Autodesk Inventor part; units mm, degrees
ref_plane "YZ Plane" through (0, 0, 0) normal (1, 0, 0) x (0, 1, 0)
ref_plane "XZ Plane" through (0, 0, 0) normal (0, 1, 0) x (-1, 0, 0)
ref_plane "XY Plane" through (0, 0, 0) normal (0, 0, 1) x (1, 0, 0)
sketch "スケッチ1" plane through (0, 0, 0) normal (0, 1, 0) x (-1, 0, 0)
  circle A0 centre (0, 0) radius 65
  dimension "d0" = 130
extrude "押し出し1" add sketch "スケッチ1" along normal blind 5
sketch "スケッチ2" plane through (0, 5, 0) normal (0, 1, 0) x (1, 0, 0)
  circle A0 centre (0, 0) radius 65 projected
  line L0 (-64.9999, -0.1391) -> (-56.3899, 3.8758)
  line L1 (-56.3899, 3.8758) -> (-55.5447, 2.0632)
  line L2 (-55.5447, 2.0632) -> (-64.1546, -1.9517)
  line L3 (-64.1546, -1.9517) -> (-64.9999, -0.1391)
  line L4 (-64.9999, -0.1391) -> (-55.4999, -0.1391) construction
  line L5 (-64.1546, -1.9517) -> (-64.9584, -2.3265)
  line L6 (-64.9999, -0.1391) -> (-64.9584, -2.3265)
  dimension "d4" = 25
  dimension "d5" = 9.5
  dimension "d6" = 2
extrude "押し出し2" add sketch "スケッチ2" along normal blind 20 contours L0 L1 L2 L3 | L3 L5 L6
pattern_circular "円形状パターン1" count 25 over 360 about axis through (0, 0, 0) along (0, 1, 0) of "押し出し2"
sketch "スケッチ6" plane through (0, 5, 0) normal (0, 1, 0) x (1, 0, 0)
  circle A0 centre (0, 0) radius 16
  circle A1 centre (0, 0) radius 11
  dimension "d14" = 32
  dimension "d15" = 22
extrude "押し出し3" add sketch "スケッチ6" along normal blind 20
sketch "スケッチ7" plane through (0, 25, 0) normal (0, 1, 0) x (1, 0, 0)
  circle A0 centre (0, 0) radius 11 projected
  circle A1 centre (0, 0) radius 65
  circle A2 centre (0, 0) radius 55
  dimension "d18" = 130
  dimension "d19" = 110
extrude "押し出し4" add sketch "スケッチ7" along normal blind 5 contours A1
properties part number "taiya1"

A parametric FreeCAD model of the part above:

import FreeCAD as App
import Part
import Sketcher
Q = App.Units.Quantity

doc = App.newDocument("Part")
body = doc.addObject("PartDesign::Body", "Body")

sketch1 = doc.addObject("Sketcher::SketchObject", "Sketch")
body.addObject(sketch1)
sketch1.AttachmentSupport = (doc.XZ_Plane, [""])
sketch1.MapMode = "FlatFace"
sketch1.addGeometry(Part.Circle(App.Vector(0, 0, 0), App.Vector(0, 0, 1), 65), False)
sketch1.addConstraint([
    Sketcher.Constraint("Coincident", 0, 3, -1, 1),
    Sketcher.Constraint("Diameter", 0, Q("130 mm")),
])
pad1 = doc.addObject("PartDesign::Pad", "Pad")
body.addObject(pad1)
pad1.Profile = sketch1
pad1.Length = 5
pad1.Reversed = True

sketch2 = doc.addObject("Sketcher::SketchObject", "Sketch001")
body.addObject(sketch2)
sketch2.AttachmentSupport = (doc.XZ_Plane, [""])
sketch2.MapMode = "FlatFace"
sketch2.AttachmentOffset = App.Placement(App.Vector(0, 0, -5), App.Rotation())
sketch2.addGeometry([
    Part.LineSegment(App.Vector(-56.4, -3.9, 0), App.Vector(-65, 0.1, 0)),
    Part.LineSegment(App.Vector(-65, 0.1, 0), App.Vector(-65, 2.3, 0)),
    Part.LineSegment(App.Vector(-65, 2.3, 0), App.Vector(-64.2, 2, 0)),
    Part.LineSegment(App.Vector(-64.2, 2, 0), App.Vector(-55.5, -2.1, 0)),
    Part.LineSegment(App.Vector(-55.5, -2.1, 0), App.Vector(-56.4, -3.9, 0)),
], False)
sketch2.addConstraint([
    Sketcher.Constraint("Coincident", 0, 2, 1, 1),
    Sketcher.Constraint("Coincident", 1, 2, 2, 1),
    Sketcher.Constraint("Coincident", 2, 2, 3, 1),
    Sketcher.Constraint("Coincident", 3, 2, 4, 1),
    Sketcher.Constraint("Coincident", 4, 2, 0, 1),
    Sketcher.Constraint("Parallel", 0, 2),
    Sketcher.Constraint("Parallel", 2, 3),
    Sketcher.Constraint("Perpendicular", 3, 4),
    Sketcher.Constraint("Equal", 0, 3),
    Sketcher.Constraint("Angle", 3, Q("-25.0002 deg")),
    Sketcher.Constraint("Distance", 4, Q("2 mm")),
    Sketcher.Constraint("Distance", 0, Q("9.5 mm")),
    Sketcher.Constraint("DistanceX", 0, 2, -1, 1, Q("65 mm")),
    Sketcher.Constraint("Distance", 2, Q("0.887 mm")),
    Sketcher.Constraint("DistanceY", -1, 1, 0, 2, Q("0.139 mm")),
])
pad2 = doc.addObject("PartDesign::Pad", "Pad001")
body.addObject(pad2)
pad2.Profile = sketch2
pad2.Length = 20
pad2.Reversed = True
doc.recompute()

polarpattern = doc.addObject("PartDesign::PolarPattern", "PolarPattern")
body.addObject(polarpattern)
polarpattern.Originals = [pad2]
polarpattern.Axis = (doc.Y_Axis, [""])
polarpattern.Angle = 360
polarpattern.Occurrences = 25
body.Tip = polarpattern

sketch3 = doc.addObject("Sketcher::SketchObject", "Sketch002")
body.addObject(sketch3)
sketch3.AttachmentSupport = (doc.XZ_Plane, [""])
sketch3.MapMode = "FlatFace"
sketch3.AttachmentOffset = App.Placement(App.Vector(0, 0, -5), App.Rotation())
sketch3.addGeometry([
    Part.Circle(App.Vector(0, 0, 0), App.Vector(0, 0, 1), 16),
    Part.Circle(App.Vector(0, 0, 0), App.Vector(0, 0, 1), 11),
], False)
sketch3.addConstraint([
    Sketcher.Constraint("Coincident", 0, 3, -1, 1),
    Sketcher.Constraint("Coincident", 1, 3, -1, 1),
    Sketcher.Constraint("Diameter", 0, Q("32 mm")),
    Sketcher.Constraint("Diameter", 1, Q("22 mm")),
])
pad3 = doc.addObject("PartDesign::Pad", "Pad002")
body.addObject(pad3)
pad3.Profile = sketch3
pad3.Length = 20
pad3.Reversed = True

sketch4 = doc.addObject("Sketcher::SketchObject", "Sketch003")
body.addObject(sketch4)
sketch4.AttachmentSupport = (doc.XZ_Plane, [""])
sketch4.MapMode = "FlatFace"
sketch4.AttachmentOffset = App.Placement(App.Vector(0, 0, -25), App.Rotation())
sketch4.addGeometry([
    Part.Circle(App.Vector(0, 0, 0), App.Vector(0, 0, 1), 65),
    Part.Circle(App.Vector(0, 0, 0), App.Vector(0, 0, 1), 55),
], False)
sketch4.addConstraint([
    Sketcher.Constraint("Coincident", 0, 3, -1, 1),
    Sketcher.Constraint("Coincident", 1, 3, -1, 1),
    Sketcher.Constraint("Diameter", 0, Q("130 mm")),
    Sketcher.Constraint("Diameter", 1, Q("110 mm")),
])
pad4 = doc.addObject("PartDesign::Pad", "Pad003")
body.addObject(pad4)
pad4.Profile = sketch4
pad4.Length = 5
pad4.Reversed = True

doc.recompute()
